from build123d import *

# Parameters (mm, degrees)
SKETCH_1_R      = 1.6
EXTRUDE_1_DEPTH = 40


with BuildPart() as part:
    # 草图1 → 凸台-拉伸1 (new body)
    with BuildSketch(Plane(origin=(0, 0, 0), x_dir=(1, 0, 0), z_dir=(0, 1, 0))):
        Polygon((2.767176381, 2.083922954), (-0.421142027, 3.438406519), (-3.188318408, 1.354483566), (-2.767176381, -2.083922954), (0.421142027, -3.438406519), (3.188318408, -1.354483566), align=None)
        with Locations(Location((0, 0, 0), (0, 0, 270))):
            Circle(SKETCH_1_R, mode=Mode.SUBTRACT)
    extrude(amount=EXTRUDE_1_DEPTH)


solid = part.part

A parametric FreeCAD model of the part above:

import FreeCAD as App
import Part
import Sketcher

V = App.Vector
Q = App.Units.Quantity

doc = App.newDocument("Part")
body = doc.addObject("PartDesign::Body", "Body")

# Sketch on XZ plane
sketch1 = body.newObject("Sketcher::SketchObject", "Sketch")
sketch1.AttachmentSupport = (doc.getObject("XZ_Plane"), [""])
sketch1.MapMode = "FlatFace"
sketch1.addGeometry([
    Part.LineSegment(V(2.8, -2.1, 0), V(-0.4, -3.4, 0)),  # 0
    Part.LineSegment(V(-0.4, -3.4, 0), V(-3.2, -1.4, 0)),  # 1
    Part.LineSegment(V(-3.2, -1.4, 0), V(-2.8, 2.1, 0)),  # 2
    Part.LineSegment(V(-2.8, 2.1, 0), V(0.4, 3.4, 0)),  # 3
    Part.LineSegment(V(0.4, 3.4, 0), V(3.2, 1.4, 0)),  # 4
    Part.LineSegment(V(3.2, 1.4, 0), V(2.8, -2.1, 0)),  # 5
    Part.Circle(V(0, 0, 0), V(0, 0, 1), 1.6),  # 6
], False)
sketch1.addConstraint([
    Sketcher.Constraint("Coincident", 0, 2, 1, 1),
    Sketcher.Constraint("Coincident", 1, 2, 2, 1),
    Sketcher.Constraint("Coincident", 2, 2, 3, 1),
    Sketcher.Constraint("Coincident", 3, 2, 4, 1),
    Sketcher.Constraint("Coincident", 4, 2, 5, 1),
    Sketcher.Constraint("Coincident", 5, 2, 0, 1),
    Sketcher.Constraint("Coincident", 6, 3, -1, 1),
    Sketcher.Constraint("Symmetric", 0, 2, 3, 2, -1, 1),
    Sketcher.Constraint("Symmetric", 1, 2, 4, 2, -1, 1),
    Sketcher.Constraint("Symmetric", 2, 2, 5, 2, -1, 1),
    Sketcher.Constraint("Equal", 0, 1),
    Sketcher.Constraint("Equal", 1, 2),
    Sketcher.Constraint("Diameter", 6, Q("3.2 mm")),
    Sketcher.Constraint("Distance", 0, Q("3.464102 mm")),
    Sketcher.Constraint("DistanceX", 1, 2, -1, 1, Q("3.188318 mm")),
    Sketcher.Constraint("DistanceY", 0, 2, 2, 2, Q("5.522329 mm")),
    Sketcher.Constraint("DistanceX", 2, 2, 3, 2, Q("3.188318 mm")),
])
pad1 = body.newObject("PartDesign::Pad", "Pad")
pad1.Profile = sketch1
pad1.Length = 40
pad1.Reversed = True

doc.recompute()
